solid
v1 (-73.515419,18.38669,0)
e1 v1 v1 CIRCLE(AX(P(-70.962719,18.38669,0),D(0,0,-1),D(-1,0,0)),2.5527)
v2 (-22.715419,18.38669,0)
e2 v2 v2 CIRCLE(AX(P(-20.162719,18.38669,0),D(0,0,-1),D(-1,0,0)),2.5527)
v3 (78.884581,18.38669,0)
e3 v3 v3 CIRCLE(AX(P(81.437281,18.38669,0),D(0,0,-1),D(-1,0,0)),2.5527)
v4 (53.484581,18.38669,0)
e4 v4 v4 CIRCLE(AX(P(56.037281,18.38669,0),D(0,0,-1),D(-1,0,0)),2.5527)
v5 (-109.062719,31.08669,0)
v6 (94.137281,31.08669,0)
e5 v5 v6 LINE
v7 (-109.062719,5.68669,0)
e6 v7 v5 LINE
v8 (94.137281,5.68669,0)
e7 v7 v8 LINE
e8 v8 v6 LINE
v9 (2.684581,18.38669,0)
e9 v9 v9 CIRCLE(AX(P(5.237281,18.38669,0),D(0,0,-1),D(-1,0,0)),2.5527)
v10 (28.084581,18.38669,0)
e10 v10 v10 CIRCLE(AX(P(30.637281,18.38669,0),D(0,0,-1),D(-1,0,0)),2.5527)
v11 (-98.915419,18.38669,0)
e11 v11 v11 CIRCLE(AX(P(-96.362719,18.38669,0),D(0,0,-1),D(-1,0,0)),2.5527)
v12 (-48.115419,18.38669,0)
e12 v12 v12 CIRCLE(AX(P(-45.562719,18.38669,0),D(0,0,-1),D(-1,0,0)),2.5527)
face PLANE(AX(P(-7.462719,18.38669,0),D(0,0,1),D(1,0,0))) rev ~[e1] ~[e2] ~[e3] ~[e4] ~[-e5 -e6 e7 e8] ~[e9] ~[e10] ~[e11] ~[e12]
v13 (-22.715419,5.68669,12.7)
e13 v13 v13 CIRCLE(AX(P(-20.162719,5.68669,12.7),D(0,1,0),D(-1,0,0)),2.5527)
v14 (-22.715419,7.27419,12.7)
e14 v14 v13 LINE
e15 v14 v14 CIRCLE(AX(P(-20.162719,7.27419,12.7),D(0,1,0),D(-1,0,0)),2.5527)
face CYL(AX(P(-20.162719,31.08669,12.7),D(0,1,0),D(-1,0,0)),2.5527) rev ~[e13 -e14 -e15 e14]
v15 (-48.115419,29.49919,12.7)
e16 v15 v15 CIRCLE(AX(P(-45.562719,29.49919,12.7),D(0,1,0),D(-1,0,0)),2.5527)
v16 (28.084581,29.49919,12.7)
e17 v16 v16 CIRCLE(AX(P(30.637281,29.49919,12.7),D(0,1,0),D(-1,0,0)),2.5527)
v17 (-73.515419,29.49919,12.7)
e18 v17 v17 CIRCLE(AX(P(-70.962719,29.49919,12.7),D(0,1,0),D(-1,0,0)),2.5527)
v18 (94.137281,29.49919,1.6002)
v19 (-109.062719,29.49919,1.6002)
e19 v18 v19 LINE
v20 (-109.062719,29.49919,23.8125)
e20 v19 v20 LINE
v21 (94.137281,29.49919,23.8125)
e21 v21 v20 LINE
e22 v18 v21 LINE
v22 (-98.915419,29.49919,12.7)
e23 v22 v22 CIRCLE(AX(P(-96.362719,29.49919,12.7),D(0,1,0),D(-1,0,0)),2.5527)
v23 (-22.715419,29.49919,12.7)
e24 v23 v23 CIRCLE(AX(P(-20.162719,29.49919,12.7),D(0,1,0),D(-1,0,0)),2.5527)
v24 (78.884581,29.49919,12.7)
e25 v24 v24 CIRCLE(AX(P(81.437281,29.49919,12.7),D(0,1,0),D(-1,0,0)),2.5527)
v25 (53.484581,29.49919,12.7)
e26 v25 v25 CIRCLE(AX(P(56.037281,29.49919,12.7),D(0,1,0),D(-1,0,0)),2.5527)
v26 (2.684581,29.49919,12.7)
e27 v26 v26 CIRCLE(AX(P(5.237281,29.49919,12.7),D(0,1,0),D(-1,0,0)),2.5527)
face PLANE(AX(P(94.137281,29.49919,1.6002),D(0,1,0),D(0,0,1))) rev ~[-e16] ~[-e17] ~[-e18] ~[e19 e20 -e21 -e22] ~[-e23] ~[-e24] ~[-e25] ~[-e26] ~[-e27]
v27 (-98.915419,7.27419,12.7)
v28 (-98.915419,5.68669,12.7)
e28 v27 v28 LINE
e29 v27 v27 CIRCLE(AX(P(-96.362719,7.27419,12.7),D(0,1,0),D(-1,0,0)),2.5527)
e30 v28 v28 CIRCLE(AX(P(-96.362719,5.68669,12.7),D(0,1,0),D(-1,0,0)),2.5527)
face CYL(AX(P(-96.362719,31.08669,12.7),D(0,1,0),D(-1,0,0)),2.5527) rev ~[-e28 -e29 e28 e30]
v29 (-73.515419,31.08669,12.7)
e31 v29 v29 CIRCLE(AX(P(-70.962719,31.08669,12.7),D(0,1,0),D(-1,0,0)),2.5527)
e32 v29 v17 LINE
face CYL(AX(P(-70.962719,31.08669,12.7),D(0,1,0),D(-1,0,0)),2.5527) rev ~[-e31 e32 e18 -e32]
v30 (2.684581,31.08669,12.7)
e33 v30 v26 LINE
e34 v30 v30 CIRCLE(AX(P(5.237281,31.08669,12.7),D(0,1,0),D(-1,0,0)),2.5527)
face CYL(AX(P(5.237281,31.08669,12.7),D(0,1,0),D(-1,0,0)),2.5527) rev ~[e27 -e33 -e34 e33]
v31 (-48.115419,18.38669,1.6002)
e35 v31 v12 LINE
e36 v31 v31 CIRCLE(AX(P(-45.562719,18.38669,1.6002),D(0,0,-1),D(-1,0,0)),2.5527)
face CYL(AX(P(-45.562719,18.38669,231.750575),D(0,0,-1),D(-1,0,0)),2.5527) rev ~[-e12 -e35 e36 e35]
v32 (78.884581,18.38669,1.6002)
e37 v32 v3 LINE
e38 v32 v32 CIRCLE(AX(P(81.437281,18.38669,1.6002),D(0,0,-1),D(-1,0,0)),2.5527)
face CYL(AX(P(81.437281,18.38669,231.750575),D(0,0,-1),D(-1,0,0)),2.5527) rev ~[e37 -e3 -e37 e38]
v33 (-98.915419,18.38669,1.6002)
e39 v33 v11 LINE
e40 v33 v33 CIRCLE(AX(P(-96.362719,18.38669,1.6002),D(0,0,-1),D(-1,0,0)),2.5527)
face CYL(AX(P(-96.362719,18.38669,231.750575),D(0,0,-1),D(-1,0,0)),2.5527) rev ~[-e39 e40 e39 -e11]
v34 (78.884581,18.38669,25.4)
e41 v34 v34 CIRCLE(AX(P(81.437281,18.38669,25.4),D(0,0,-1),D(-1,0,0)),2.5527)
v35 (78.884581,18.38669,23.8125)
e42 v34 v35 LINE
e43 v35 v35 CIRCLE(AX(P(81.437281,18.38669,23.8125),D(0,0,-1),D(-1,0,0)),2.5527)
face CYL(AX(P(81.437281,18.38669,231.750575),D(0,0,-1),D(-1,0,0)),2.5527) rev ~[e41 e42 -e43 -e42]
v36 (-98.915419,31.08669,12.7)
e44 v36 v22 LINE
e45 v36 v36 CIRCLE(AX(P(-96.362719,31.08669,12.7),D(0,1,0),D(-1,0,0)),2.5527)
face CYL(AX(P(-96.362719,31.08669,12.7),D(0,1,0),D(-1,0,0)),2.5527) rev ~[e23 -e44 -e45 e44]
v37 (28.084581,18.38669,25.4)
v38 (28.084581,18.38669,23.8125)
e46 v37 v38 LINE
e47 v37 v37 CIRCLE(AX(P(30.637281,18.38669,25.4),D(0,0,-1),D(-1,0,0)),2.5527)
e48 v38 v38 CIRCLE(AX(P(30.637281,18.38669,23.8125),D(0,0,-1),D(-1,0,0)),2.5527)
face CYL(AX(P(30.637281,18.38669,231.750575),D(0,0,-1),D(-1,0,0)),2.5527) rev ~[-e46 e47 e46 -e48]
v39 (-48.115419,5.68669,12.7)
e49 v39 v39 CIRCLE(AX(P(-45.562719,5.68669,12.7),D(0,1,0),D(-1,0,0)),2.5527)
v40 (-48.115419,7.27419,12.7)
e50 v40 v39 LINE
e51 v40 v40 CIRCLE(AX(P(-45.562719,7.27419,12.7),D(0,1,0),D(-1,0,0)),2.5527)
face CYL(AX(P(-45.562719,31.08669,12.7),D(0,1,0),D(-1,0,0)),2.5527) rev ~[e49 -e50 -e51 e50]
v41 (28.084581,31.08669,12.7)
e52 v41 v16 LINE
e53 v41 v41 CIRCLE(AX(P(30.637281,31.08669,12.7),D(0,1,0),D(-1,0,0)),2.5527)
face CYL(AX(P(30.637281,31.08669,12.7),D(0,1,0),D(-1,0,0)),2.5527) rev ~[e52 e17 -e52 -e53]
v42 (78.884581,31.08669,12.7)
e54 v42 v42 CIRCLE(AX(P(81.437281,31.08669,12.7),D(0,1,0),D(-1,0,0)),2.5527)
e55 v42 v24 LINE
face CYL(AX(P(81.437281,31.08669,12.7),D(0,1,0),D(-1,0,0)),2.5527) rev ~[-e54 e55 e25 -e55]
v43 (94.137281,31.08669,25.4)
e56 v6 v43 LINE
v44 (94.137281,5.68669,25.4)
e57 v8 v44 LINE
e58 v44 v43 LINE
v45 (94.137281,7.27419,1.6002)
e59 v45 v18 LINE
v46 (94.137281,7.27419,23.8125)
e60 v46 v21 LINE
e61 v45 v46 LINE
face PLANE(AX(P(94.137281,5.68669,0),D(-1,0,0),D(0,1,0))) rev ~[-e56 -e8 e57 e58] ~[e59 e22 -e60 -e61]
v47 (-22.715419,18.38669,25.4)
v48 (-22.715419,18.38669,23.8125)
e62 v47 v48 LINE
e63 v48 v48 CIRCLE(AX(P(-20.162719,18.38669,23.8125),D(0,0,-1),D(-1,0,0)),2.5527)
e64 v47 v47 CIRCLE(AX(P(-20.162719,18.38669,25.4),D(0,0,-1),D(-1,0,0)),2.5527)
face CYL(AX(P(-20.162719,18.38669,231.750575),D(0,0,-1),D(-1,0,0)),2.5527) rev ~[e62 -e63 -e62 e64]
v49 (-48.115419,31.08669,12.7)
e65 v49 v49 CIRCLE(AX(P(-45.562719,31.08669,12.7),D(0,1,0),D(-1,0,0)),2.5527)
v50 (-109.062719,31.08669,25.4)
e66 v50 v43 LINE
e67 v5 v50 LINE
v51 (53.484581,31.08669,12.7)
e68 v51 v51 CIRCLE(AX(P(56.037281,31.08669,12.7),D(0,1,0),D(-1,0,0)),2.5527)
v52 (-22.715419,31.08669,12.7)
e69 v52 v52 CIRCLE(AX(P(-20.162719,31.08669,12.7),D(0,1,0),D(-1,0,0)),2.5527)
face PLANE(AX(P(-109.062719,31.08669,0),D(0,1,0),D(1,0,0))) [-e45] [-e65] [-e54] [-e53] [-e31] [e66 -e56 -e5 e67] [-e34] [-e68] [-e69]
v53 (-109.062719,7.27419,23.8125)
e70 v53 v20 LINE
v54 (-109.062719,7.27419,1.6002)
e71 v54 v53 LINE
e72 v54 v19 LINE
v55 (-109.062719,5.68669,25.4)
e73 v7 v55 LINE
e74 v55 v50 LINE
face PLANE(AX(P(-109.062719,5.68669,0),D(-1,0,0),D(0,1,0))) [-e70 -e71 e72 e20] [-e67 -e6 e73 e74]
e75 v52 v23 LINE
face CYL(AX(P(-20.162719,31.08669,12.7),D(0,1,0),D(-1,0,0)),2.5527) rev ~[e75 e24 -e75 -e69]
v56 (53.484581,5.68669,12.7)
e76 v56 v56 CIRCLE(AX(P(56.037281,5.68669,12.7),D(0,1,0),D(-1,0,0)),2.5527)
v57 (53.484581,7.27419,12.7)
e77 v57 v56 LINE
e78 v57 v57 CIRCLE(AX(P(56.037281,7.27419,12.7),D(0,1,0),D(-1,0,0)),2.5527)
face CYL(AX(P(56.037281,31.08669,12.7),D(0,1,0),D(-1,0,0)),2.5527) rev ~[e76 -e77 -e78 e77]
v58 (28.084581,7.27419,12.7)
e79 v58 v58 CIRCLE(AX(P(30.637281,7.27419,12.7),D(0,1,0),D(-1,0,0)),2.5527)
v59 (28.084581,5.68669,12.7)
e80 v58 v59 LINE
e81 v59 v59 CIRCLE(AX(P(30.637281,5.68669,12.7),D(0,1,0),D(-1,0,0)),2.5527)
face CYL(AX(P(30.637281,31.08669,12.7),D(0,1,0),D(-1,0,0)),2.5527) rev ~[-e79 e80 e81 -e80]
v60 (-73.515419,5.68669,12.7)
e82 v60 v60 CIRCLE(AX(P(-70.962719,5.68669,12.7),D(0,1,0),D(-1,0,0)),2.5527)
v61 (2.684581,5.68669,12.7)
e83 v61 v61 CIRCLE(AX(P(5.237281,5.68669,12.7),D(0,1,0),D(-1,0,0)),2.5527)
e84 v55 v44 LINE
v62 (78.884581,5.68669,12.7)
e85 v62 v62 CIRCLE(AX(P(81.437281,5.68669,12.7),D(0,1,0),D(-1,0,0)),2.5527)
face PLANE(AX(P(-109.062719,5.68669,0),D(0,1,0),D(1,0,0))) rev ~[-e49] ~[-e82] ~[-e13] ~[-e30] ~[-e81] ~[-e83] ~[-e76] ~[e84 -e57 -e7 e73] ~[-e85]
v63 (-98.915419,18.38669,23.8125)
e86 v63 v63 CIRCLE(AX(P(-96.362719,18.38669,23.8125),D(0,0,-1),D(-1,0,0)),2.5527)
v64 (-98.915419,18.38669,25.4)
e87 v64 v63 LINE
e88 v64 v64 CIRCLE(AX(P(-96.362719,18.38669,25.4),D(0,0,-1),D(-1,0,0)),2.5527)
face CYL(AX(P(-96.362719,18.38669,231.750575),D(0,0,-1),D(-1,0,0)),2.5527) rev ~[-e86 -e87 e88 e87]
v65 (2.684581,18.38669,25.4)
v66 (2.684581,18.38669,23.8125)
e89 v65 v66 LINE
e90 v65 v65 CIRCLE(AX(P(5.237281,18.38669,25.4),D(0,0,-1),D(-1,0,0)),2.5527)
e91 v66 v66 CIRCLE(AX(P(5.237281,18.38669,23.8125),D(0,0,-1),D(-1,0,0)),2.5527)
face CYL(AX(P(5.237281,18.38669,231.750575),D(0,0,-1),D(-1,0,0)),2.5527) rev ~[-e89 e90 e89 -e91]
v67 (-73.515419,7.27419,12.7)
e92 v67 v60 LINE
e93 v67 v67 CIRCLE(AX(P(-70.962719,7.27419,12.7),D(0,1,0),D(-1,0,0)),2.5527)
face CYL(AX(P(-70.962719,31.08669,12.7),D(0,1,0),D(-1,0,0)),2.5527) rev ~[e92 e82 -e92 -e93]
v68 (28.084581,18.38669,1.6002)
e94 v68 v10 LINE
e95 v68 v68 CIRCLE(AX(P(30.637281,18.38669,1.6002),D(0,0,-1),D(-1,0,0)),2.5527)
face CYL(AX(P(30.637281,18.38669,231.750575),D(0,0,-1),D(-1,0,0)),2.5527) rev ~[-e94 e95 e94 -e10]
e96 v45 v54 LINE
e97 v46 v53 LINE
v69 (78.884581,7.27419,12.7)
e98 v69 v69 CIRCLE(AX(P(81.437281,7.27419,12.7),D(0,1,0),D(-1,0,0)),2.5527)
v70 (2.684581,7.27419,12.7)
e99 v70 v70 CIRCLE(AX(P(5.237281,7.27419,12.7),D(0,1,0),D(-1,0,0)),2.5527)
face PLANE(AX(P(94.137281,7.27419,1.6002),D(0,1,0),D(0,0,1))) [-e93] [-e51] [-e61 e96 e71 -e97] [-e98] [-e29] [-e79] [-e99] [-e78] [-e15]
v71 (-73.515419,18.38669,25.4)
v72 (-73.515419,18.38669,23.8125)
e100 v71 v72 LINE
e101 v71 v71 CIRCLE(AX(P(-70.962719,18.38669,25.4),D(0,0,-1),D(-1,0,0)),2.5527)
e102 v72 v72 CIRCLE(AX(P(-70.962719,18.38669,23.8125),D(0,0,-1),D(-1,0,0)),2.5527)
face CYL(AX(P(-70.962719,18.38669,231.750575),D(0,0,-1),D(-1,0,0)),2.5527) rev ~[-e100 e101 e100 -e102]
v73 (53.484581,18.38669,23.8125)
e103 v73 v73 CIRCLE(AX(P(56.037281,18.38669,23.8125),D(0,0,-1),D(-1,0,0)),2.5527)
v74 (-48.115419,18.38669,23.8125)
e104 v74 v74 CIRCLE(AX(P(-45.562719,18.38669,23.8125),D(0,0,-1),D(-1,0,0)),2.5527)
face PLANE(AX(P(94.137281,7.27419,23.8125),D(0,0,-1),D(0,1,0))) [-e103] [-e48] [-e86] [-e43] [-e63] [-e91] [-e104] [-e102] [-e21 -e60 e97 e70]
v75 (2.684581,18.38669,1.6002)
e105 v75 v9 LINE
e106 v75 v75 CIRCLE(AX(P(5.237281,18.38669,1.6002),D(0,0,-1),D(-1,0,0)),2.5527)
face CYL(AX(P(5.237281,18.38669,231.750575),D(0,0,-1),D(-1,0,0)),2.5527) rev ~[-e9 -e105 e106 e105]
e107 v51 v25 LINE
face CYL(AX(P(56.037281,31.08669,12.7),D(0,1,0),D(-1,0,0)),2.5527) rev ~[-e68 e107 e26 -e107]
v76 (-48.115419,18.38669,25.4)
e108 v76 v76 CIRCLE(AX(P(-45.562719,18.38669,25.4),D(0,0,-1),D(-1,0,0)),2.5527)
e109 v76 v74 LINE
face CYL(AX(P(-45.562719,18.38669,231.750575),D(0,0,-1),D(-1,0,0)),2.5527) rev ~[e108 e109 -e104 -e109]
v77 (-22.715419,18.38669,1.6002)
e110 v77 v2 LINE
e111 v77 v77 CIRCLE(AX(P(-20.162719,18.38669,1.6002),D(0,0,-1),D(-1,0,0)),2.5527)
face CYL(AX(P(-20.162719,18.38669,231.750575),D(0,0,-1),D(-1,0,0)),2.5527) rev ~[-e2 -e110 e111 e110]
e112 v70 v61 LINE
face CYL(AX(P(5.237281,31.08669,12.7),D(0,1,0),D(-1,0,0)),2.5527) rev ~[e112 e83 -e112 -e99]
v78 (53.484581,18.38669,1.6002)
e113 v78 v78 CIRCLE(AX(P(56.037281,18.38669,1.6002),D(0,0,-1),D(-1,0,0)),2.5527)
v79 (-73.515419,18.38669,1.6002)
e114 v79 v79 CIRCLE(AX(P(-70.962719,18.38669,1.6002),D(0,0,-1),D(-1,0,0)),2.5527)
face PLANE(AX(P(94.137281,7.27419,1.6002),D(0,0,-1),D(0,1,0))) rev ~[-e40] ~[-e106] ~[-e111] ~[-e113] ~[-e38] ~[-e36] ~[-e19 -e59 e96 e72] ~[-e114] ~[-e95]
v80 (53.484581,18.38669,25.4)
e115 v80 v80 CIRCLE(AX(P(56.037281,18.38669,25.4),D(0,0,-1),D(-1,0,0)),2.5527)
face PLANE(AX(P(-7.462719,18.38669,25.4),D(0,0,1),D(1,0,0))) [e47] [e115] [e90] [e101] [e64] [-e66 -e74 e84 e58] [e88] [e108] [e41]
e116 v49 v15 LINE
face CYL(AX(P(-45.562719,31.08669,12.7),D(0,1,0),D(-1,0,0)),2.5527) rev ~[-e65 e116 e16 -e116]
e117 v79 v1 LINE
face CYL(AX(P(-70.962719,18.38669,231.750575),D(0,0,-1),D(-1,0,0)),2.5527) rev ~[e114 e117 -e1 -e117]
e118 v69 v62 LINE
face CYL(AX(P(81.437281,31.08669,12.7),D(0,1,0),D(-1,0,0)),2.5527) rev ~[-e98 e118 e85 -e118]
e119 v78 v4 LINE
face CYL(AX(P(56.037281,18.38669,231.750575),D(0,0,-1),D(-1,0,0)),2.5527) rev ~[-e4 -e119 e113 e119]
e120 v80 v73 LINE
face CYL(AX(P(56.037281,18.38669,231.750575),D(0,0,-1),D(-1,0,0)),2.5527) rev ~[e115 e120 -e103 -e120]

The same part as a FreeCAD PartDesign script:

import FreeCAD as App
import Part
import Sketcher
from FreeCAD import Vector
Q = App.Units.Quantity


def add_polygon(sketch, points):
    """Adds a closed chain of lines whose ends are joined by coincident constraints."""
    first, n = sketch.GeometryCount, len(points)
    for a, b in zip(points, points[1:] + points[:1]):
        sketch.addGeometry(Part.LineSegment(App.Vector(*a, 0), App.Vector(*b, 0)), False)
    for i in range(n):
        sketch.addConstraint(Sketcher.Constraint("Coincident", first + i, 2, first + (i + 1) % n, 1))

doc = App.newDocument("Part")
params = doc.addObject("Spreadsheet::Sheet", "Params")
for row, (alias, value) in enumerate([
    ("sketch1_width", "8 in"),
    ("sketch1_height", "1 in"),
    ("pad1_length", "1 in"),
    ("sketch2_width", "0.875 in"),
    ("pocket1_length", "8 in"),
    ("sketch3_diameter", "0.201 in"),
    ("pocket2_length", "2 in"),
    ("sketch4_diameter", "0.201 in"),
    ("hole_diameter", "0.201 in"),
], start=1):
    params.set(f"A{row}", alias)
    params.set(f"B{row}", "=" + value)
    params.setAlias(f"B{row}", alias)

body = doc.addObject("PartDesign::Body", "Body")

sketch1 = body.newObject("Sketcher::SketchObject", "Sketch")
sketch1.AttachmentSupport = (doc.getObject("XY_Plane"), [""])
sketch1.MapMode = "FlatFace"
add_polygon(sketch1, [(-109, 31), (-109, 6), (94, 6), (94, 31)])
sketch1.addConstraint([
    Sketcher.Constraint("Vertical", 0),
    Sketcher.Constraint("Horizontal", 1),
    Sketcher.Constraint("Vertical", 2),
    Sketcher.Constraint("Horizontal", 3),
    Sketcher.Constraint("DistanceX", 1, 1, 1, 2, Q("8 in")),
    Sketcher.Constraint("DistanceY", 0, 2, 0, 1, Q("1 in")),
    Sketcher.Constraint("DistanceX", 0, 2, -1, 1, Q("109.062719 mm")),
    Sketcher.Constraint("DistanceY", -1, 1, 0, 2, Q("5.68669 mm")),
])
sketch1.setExpression("Constraints[8]", "Params.sketch1_width")
sketch1.setExpression("Constraints[9]", "Params.sketch1_height")
pad1 = body.newObject("PartDesign::Pad", "Pad")
pad1.Profile = sketch1
pad1.setExpression("Length", "Params.pad1_length")

sketch2 = body.newObject("Sketcher::SketchObject", "Sketch001")
sketch2.AttachmentSupport = (doc.getObject("YZ_Plane"), [""])
sketch2.MapMode = "FlatFace"
sketch2.AttachmentOffset = App.Placement(Vector(0, 0, 94.137281), App.Rotation())
add_polygon(sketch2, [(7, 24), (7, 2), (29, 2), (29, 24)])
sketch2.addConstraint([
    Sketcher.Constraint("Vertical", 0),
    Sketcher.Constraint("Horizontal", 1),
    Sketcher.Constraint("Vertical", 2),
    Sketcher.Constraint("Horizontal", 3),
    Sketcher.Constraint("DistanceX", 1, 1, 1, 2, Q("0.875 in")),
    Sketcher.Constraint("DistanceY", 0, 2, 0, 1, Q("0.8745 in")),
    Sketcher.Constraint("DistanceY", -1, 1, 0, 2, Q("0.063 in")),
    Sketcher.Constraint("DistanceX", -1, 1, 0, 2, Q("7.27419 mm")),
])
sketch2.setExpression("Constraints[8]", "Params.sketch2_width")
pocket1 = body.newObject("PartDesign::Pocket", "Pocket")
pocket1.Profile = sketch2
pocket1.setExpression("Length", "Params.pocket1_length")

sketch3 = body.newObject("Sketcher::SketchObject", "Sketch002")
sketch3.AttachmentSupport = (doc.getObject("XZ_Plane"), [""])
sketch3.MapMode = "FlatFace"
sketch3.AttachmentOffset = App.Placement(Vector(0, 0, -31.08669), App.Rotation())
sketch3.addGeometry([
    Part.Circle(Vector(5.2, 12.7, 0), Vector(0, 0, 1), 2.6),
    Part.Circle(Vector(30.6, 12.7, 0), Vector(0, 0, 1), 2.6),
    Part.Circle(Vector(-20.2, 12.7, 0), Vector(0, 0, 1), 2.6),
    Part.Circle(Vector(-45.6, 12.7, 0), Vector(0, 0, 1), 2.6),
    Part.Circle(Vector(-71, 12.7, 0), Vector(0, 0, 1), 2.6),
    Part.Circle(Vector(-96.4, 12.7, 0), Vector(0, 0, 1), 2.6),
    Part.Circle(Vector(81.4, 12.7, 0), Vector(0, 0, 1), 2.6),
    Part.Circle(Vector(56, 12.7, 0), Vector(0, 0, 1), 2.6),
], False)
sketch3.addConstraint([
    Sketcher.Constraint("Equal", 0, 1),
    Sketcher.Constraint("Equal", 1, 2),
    Sketcher.Constraint("Equal", 2, 3),
    Sketcher.Constraint("Equal", 3, 4),
    Sketcher.Constraint("Equal", 4, 5),
    Sketcher.Constraint("Equal", 5, 6),
    Sketcher.Constraint("Equal", 6, 7),
    Sketcher.Constraint("Horizontal", 0, 3, 1, 3),
    Sketcher.Constraint("Horizontal", 1, 3, 2, 3),
    Sketcher.Constraint("Horizontal", 2, 3, 3, 3),
    Sketcher.Constraint("Horizontal", 3, 3, 4, 3),
    Sketcher.Constraint("Horizontal", 4, 3, 5, 3),
    Sketcher.Constraint("Horizontal", 5, 3, 6, 3),
    Sketcher.Constraint("Horizontal", 6, 3, 7, 3),
    Sketcher.Constraint("Diameter", 0, Q("0.201 in")),
    Sketcher.Constraint("DistanceX", 0, 3, 1, 3, Q("1 in")),
    Sketcher.Constraint("DistanceX", 2, 3, 0, 3, Q("1 in")),
    Sketcher.Constraint("DistanceX", 3, 3, 2, 3, Q("1 in")),
    Sketcher.Constraint("DistanceX", 4, 3, 3, 3, Q("1 in")),
    Sketcher.Constraint("DistanceX", 5, 3, 4, 3, Q("1 in")),
    Sketcher.Constraint("DistanceX", 1, 3, 6, 3, Q("2 in")),
    Sketcher.Constraint("DistanceX", 1, 3, 7, 3, Q("1 in")),
    Sketcher.Constraint("DistanceY", -1, 1, 0, 3, Q("0.5 in")),
    Sketcher.Constraint("DistanceX", -1, 1, 0, 3, Q("5.237281 mm")),
])
sketch3.setExpression("Constraints[14]", "Params.sketch3_diameter")
pocket2 = body.newObject("PartDesign::Pocket", "Pocket001")
pocket2.Profile = sketch3
pocket2.setExpression("Length", "Params.pocket2_length")
pocket2.Reversed = True

sketch4 = body.newObject("Sketcher::SketchObject", "Sketch003")
sketch4.AttachmentSupport = (doc.getObject("XY_Plane"), [""])
sketch4.MapMode = "FlatFace"
sketch4.AttachmentOffset = App.Placement(Vector(0, 0, 1 * 25.4), App.Rotation())
sketch4.addGeometry([
    Part.Circle(Vector(81.4, -7, 0), Vector(0, 0, 1), 2.6),
    Part.Circle(Vector(-96.4, 18.4, 0), Vector(0, 0, 1), 2.6),
    Part.Circle(Vector(-71, 18.4, 0), Vector(0, 0, 1), 2.6),
    Part.Circle(Vector(30.6, 18.4, 0), Vector(0, 0, 1), 2.6),
    Part.Circle(Vector(-96.4, -7, 0), Vector(0, 0, 1), 2.6),
    Part.Circle(Vector(-20.2, 18.4, 0), Vector(0, 0, 1), 2.6),
    Part.Circle(Vector(81.4, 18.4, 0), Vector(0, 0, 1), 2.6),
    Part.Circle(Vector(-45.6, -7, 0), Vector(0, 0, 1), 2.6),
    Part.Circle(Vector(5.2, -7, 0), Vector(0, 0, 1), 2.6),
    Part.Circle(Vector(56, -7, 0), Vector(0, 0, 1), 2.6),
    Part.Circle(Vector(30.6, -7, 0), Vector(0, 0, 1), 2.6),
    Part.Circle(Vector(56, 18.4, 0), Vector(0, 0, 1), 2.6),
    Part.Circle(Vector(-45.6, 18.4, 0), Vector(0, 0, 1), 2.6),
    Part.Circle(Vector(-71, -7, 0), Vector(0, 0, 1), 2.6),
    Part.Circle(Vector(-20.2, -7, 0), Vector(0, 0, 1), 2.6),
    Part.Circle(Vector(5.2, 18.4, 0), Vector(0, 0, 1), 2.6),
], False)
sketch4.addConstraint([
    Sketcher.Constraint("Equal", 0, 1),
    Sketcher.Constraint("Equal", 1, 2),
    Sketcher.Constraint("Equal", 2, 3),
    Sketcher.Constraint("Equal", 3, 4),
    Sketcher.Constraint("Equal", 4, 5),
    Sketcher.Constraint("Equal", 5, 6),
    Sketcher.Constraint("Equal", 6, 7),
    Sketcher.Constraint("Equal", 7, 8),
    Sketcher.Constraint("Equal", 8, 9),
    Sketcher.Constraint("Equal", 9, 10),
    Sketcher.Constraint("Equal", 10, 11),
    Sketcher.Constraint("Equal", 11, 12),
    Sketcher.Constraint("Equal", 12, 13),
    Sketcher.Constraint("Equal", 13, 14),
    Sketcher.Constraint("Equal", 14, 15),
    Sketcher.Constraint("Horizontal", 1, 3, 2, 3),
    Sketcher.Constraint("Horizontal", 2, 3, 3, 3),
    Sketcher.Constraint("Horizontal", 0, 3, 4, 3),
    Sketcher.Constraint("Horizontal", 3, 3, 5, 3),
    Sketcher.Constraint("Horizontal", 5, 3, 6, 3),
    Sketcher.Constraint("Horizontal", 4, 3, 7, 3),
    Sketcher.Constraint("Horizontal", 7, 3, 8, 3),
    Sketcher.Constraint("Horizontal", 8, 3, 9, 3),
    Sketcher.Constraint("Horizontal", 9, 3, 10, 3),
    Sketcher.Constraint("Horizontal", 6, 3, 11, 3),
    Sketcher.Constraint("Horizontal", 11, 3, 12, 3),
    Sketcher.Constraint("Horizontal", 10, 3, 13, 3),
    Sketcher.Constraint("Horizontal", 13, 3, 14, 3),
    Sketcher.Constraint("Horizontal", 12, 3, 15, 3),
    Sketcher.Constraint("Vertical", 1, 3, 4, 3),
    Sketcher.Constraint("Vertical", 0, 3, 6, 3),
    Sketcher.Constraint("Vertical", 3, 3, 10, 3),
    Sketcher.Constraint("Vertical", 9, 3, 11, 3),
    Sketcher.Constraint("Vertical", 7, 3, 12, 3),
    Sketcher.Constraint("Vertical", 2, 3, 13, 3),
    Sketcher.Constraint("Vertical", 5, 3, 14, 3),
    Sketcher.Constraint("Vertical", 8, 3, 15, 3),
    Sketcher.Constraint("Diameter", 0, Q("0.201 in")),
    Sketcher.Constraint("DistanceX", 1, 3, 0, 3, Q("7 in")),
    Sketcher.Constraint("DistanceY", 0, 3, 1, 3, Q("1 in")),
    Sketcher.Constraint("DistanceX", 1, 3, 2, 3, Q("1 in")),
    Sketcher.Constraint("DistanceX", 3, 3, 0, 3, Q("2 in")),
    Sketcher.Constraint("DistanceX", 5, 3, 3, 3, Q("2 in")),
    Sketcher.Constraint("DistanceX", 7, 3, 5, 3, Q("1 in")),
    Sketcher.Constraint("DistanceX", 8, 3, 3, 3, Q("1 in")),
    Sketcher.Constraint("DistanceX", 9, 3, 0, 3, Q("1 in")),
    Sketcher.Constraint("DistanceX", -1, 1, 0, 3, Q("81.437281 mm")),
    Sketcher.Constraint("DistanceY", 0, 3, -1, 1, Q("7.01331 mm")),
])
sketch4.setExpression("Constraints[37]", "Params.sketch4_diameter")
doc.recompute()
hole = body.newObject("PartDesign::Hole", "Hole")
hole.Profile = sketch4
hole.ThreadType = "None"
hole.setExpression("Diameter", "Params.hole_diameter")
hole.DepthType = "ThroughAll"

doc.recompute()
